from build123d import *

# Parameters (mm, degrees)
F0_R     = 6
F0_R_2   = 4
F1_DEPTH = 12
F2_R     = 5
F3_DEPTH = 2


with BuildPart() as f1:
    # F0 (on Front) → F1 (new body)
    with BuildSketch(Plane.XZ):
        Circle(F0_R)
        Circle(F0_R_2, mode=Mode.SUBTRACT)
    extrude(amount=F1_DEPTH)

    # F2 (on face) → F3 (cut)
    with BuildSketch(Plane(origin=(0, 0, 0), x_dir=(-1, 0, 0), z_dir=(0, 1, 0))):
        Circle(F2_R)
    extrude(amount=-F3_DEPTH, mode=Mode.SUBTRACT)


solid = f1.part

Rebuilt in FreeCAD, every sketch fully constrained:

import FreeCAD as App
import Part
import Sketcher

V = App.Vector

doc = App.newDocument("Part")
body = doc.addObject("PartDesign::Body", "Body")

# Sketch on XZ plane
sketch1 = doc.addObject("Sketcher::SketchObject", "Sketch")
body.addObject(sketch1)
sketch1.AttachmentSupport = (doc.XZ_Plane, [""])
sketch1.MapMode = "FlatFace"
sketch1.addGeometry(Part.Circle(V(0, 0, 0), V(0, 0, 1), 6), False)
sketch1.addGeometry(Part.Circle(V(0, 0, 0), V(0, 0, 1), 4), False)
sketch1.addConstraint(Sketcher.Constraint("Coincident", 0, 3, -1, 1))
sketch1.addConstraint(Sketcher.Constraint("Coincident", 1, 3, -1, 1))
sketch1.addConstraint(Sketcher.Constraint("Diameter", 0, 12.0))
sketch1.addConstraint(Sketcher.Constraint("Diameter", 1, 8.0))
pad1 = doc.addObject("PartDesign::Pad", "Pad")
body.addObject(pad1)
pad1.Profile = sketch1
pad1.Length = 12

# Sketch on XZ plane
sketch2 = doc.addObject("Sketcher::SketchObject", "Sketch001")
body.addObject(sketch2)
sketch2.AttachmentSupport = (doc.XZ_Plane, [""])
sketch2.MapMode = "FlatFace"
sketch2.addGeometry(Part.Circle(V(0, 0, 0), V(0, 0, 1), 5), False)
sketch2.addConstraint(Sketcher.Constraint("Coincident", 0, 3, -1, 1))
sketch2.addConstraint(Sketcher.Constraint("Diameter", 0, 10.0))
pocket1 = doc.addObject("PartDesign::Pocket", "Pocket")
body.addObject(pocket1)
pocket1.Profile = sketch2
pocket1.Length = 2
pocket1.Reversed = True

doc.recompute()
